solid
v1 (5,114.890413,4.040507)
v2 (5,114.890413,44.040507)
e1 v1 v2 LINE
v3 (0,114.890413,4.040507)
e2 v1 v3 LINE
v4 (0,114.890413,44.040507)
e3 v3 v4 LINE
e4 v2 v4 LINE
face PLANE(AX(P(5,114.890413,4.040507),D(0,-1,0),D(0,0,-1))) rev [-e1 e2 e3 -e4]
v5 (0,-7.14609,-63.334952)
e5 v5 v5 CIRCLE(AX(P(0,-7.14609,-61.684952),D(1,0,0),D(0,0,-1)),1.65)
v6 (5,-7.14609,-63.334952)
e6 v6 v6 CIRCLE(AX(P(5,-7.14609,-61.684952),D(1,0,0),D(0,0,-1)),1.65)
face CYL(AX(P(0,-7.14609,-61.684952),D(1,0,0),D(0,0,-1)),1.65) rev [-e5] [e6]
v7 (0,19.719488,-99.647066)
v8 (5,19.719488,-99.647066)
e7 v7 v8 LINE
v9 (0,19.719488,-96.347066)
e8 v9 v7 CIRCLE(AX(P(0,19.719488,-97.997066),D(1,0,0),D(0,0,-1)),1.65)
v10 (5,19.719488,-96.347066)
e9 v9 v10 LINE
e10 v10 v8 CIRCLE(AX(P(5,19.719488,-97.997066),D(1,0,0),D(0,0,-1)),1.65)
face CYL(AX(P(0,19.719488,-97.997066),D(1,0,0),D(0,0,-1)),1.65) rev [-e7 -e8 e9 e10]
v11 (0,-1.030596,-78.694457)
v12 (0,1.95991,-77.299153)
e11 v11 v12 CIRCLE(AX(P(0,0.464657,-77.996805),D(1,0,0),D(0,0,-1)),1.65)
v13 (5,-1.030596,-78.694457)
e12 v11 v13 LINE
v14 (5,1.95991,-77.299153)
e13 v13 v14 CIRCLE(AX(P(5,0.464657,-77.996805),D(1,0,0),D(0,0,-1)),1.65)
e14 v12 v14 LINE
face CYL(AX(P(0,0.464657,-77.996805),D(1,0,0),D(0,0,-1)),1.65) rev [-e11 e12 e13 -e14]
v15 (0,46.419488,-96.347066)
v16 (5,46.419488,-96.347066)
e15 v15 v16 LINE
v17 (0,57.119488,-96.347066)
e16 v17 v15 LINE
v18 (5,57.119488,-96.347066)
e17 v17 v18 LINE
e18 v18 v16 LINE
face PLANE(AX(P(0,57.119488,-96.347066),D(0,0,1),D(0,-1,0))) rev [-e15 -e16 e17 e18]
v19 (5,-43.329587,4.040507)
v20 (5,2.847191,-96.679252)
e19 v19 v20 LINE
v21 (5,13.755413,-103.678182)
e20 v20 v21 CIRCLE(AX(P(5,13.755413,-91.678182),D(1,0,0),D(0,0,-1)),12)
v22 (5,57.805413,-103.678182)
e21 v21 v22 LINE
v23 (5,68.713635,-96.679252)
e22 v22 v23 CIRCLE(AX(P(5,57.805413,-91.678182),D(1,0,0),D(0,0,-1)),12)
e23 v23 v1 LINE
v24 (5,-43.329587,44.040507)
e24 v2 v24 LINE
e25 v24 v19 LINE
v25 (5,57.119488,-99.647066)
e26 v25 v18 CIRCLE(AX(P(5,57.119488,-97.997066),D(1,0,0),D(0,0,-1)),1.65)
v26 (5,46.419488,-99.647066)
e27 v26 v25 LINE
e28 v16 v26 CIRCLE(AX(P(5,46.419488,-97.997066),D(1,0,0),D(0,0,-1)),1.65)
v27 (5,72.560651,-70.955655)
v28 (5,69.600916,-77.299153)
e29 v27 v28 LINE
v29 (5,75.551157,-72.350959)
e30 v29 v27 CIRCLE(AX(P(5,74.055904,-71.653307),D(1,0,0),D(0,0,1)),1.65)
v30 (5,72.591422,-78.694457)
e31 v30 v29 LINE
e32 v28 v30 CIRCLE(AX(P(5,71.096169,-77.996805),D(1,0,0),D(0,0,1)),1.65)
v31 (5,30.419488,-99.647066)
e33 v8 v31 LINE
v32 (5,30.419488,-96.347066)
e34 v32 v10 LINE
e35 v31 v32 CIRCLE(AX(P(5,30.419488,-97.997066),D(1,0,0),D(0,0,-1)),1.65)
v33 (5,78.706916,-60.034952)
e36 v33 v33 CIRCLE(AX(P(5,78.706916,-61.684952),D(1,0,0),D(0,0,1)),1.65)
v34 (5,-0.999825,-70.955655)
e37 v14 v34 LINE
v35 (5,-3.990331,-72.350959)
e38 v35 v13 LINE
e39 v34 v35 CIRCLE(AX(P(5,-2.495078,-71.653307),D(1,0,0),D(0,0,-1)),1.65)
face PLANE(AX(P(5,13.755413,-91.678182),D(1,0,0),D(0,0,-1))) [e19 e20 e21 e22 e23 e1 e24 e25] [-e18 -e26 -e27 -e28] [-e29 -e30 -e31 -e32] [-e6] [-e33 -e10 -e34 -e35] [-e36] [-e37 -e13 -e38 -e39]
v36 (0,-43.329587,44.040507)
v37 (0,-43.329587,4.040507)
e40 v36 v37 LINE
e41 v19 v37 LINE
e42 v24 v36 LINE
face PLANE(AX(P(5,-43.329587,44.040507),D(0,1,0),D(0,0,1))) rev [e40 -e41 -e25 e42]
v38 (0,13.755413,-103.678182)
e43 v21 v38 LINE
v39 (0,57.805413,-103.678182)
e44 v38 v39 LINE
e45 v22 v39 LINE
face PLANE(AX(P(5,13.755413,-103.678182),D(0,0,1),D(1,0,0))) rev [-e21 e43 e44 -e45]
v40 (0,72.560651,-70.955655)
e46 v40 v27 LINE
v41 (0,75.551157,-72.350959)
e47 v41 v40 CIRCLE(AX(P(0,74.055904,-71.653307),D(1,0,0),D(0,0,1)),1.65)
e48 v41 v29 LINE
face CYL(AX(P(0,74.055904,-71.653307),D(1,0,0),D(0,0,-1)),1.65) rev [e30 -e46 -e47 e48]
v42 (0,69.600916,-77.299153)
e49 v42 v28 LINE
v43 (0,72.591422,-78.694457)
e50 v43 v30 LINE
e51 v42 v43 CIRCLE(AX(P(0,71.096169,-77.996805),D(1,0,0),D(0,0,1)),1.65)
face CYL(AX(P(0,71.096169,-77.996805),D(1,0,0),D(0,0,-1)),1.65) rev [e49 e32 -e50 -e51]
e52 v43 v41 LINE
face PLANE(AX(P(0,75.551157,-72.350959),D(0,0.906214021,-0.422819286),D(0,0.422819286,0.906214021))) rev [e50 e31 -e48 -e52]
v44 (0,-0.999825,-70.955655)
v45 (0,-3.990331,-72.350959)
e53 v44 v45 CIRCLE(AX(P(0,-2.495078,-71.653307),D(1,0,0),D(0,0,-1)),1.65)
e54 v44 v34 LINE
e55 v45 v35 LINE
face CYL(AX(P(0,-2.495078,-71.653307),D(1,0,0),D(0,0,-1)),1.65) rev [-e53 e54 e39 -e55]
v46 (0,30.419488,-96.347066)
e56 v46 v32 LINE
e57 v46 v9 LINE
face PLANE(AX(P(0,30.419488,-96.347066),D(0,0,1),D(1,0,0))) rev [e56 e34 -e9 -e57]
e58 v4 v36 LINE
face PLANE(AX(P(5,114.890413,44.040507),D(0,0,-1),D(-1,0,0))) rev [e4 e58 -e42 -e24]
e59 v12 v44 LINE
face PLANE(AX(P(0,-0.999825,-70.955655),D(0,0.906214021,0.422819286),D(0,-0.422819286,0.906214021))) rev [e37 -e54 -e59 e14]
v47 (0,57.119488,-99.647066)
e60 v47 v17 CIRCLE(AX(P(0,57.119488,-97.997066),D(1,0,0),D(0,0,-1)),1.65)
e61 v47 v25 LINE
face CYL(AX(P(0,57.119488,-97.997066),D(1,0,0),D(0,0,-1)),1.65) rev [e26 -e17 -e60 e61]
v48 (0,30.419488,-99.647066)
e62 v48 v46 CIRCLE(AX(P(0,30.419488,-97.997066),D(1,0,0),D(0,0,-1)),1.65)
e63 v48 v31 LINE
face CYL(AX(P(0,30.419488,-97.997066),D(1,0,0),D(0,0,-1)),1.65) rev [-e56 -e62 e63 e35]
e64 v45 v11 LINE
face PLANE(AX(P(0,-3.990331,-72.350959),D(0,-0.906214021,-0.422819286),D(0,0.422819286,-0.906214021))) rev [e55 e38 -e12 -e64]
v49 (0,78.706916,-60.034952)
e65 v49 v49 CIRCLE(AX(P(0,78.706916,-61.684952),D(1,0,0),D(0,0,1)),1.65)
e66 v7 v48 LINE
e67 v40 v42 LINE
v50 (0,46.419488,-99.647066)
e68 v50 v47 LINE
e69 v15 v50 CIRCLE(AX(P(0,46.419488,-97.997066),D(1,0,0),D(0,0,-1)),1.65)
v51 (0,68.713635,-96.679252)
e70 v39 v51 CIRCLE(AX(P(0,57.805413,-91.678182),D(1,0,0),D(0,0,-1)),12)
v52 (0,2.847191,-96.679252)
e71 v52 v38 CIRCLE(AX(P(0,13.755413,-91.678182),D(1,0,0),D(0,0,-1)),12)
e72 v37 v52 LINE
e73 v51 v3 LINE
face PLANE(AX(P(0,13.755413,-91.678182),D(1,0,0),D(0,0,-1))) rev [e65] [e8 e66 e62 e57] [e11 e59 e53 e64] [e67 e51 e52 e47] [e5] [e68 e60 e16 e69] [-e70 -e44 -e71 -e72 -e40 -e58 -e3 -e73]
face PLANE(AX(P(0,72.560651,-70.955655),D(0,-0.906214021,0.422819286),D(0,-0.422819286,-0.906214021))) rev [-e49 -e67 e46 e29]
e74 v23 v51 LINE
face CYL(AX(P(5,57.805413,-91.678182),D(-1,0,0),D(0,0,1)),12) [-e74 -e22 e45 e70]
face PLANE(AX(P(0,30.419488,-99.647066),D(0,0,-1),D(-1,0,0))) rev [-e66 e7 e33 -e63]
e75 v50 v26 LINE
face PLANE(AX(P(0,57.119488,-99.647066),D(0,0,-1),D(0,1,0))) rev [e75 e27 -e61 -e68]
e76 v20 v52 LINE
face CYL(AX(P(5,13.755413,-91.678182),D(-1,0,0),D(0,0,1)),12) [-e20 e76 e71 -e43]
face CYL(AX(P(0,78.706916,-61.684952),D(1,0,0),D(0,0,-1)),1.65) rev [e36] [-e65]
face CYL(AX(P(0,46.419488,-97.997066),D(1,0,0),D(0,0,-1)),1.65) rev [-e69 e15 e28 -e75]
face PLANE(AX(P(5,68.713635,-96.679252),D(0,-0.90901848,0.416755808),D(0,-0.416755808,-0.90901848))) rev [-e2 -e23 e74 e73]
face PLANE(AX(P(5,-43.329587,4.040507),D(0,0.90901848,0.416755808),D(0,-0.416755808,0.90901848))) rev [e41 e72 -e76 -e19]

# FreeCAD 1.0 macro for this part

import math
import FreeCAD as App
import Part
import Sketcher

doc = App.newDocument("Part")
params = doc.addObject("Spreadsheet::Sheet", "Params")
for row, (alias, value) in enumerate([
    ("sketch1_radius", "12 mm"),
    ("sketch1_height", "40 mm"),
    ("sketch1_width", "158.22 mm"),
    ("sketch1_width2", "44.05 mm"),
    ("pad1_length", "5 mm"),
    ("sketch2_diameter", "3.3 mm"),
    ("sketch2_length", "7 mm"),
    ("sketch2_width", "10.7 mm"),
    ("pocket1_length", "5 mm"),
], start=1):
    params.set(f"A{row}", alias)
    params.set(f"B{row}", "=" + value)
    params.setAlias(f"B{row}", alias)

body = doc.addObject("PartDesign::Body", "Body")

# Sketch on YZ plane
sketch1 = doc.addObject("Sketcher::SketchObject", "Sketch")
body.addObject(sketch1)
sketch1.AttachmentSupport = (doc.YZ_Plane, [""])
sketch1.MapMode = "FlatFace"
sketch1.addGeometry([
    Part.LineSegment(App.Vector(114.890413, 44.040507, 0), App.Vector(-43.329587, 44.040507, 0)),  # 0
    Part.LineSegment(App.Vector(-43.329587, 44.040507, 0), App.Vector(-43.329587, 4.040507, 0)),  # 1
    Part.LineSegment(App.Vector(-43.329587, 4.040507, 0), App.Vector(2.847191, -96.679252, 0)),  # 2
    Part.ArcOfCircle(Part.Circle(App.Vector(13.755413, -91.678182, 0), App.Vector(0, 0, 1), 12), math.radians(-155.370063), math.radians(-90)),  # 3
    Part.LineSegment(App.Vector(13.755413, -103.678182, 0), App.Vector(57.805413, -103.678182, 0)),  # 4
    Part.ArcOfCircle(Part.Circle(App.Vector(57.805413, -91.678182, 0), App.Vector(0, 0, 1), 12), math.radians(-90), math.radians(-24.629937)),  # 5
    Part.LineSegment(App.Vector(68.713635, -96.679252, 0), App.Vector(114.890413, 4.040507, 0)),  # 6
    Part.LineSegment(App.Vector(114.890413, 4.040507, 0), App.Vector(114.890413, 44.040507, 0)),  # 7
], False)
sketch1.addConstraint([
    Sketcher.Constraint("Coincident", 0, 2, 1, 1),
    Sketcher.Constraint("Coincident", 1, 2, 2, 1),
    Sketcher.Constraint("Tangent", 2, 2, 3, 1),
    Sketcher.Constraint("Tangent", 3, 2, 4, 1),
    Sketcher.Constraint("Tangent", 4, 2, 5, 1),
    Sketcher.Constraint("Tangent", 5, 2, 6, 1),
    Sketcher.Constraint("Coincident", 6, 2, 7, 1),
    Sketcher.Constraint("Coincident", 7, 2, 0, 1),
    Sketcher.Constraint("Horizontal", 0),
    Sketcher.Constraint("Vertical", 1),
    Sketcher.Constraint("Horizontal", 4),
    Sketcher.Constraint("Vertical", 7),
    Sketcher.Constraint("Equal", 3, 5),
    Sketcher.Constraint("Horizontal", 2, 2, 5, 2),
    Sketcher.Constraint("Horizontal", 1, 2, 6, 2),
    Sketcher.Constraint("Radius", 3, 12.0),
    Sketcher.Constraint("DistanceY", 1, 2, 1, 1, 40.0),
    Sketcher.Constraint("DistanceX", 0, 2, 0, 1, 158.22),
    Sketcher.Constraint("DistanceX", 4, 1, 4, 2, 44.05),
    Sketcher.Constraint("DistanceX", -1, 1, 2, 2, 2.847191),
    Sketcher.Constraint("DistanceY", 3, 3, 0, 2, 135.71869),
    Sketcher.Constraint("DistanceY", 3, 3, -1, 1, 91.678182),
])
sketch1.setExpression("Constraints[15]", "Params.sketch1_radius")
sketch1.setExpression("Constraints[16]", "Params.sketch1_height")
sketch1.setExpression("Constraints[17]", "Params.sketch1_width")
sketch1.setExpression("Constraints[18]", "Params.sketch1_width2")
pad1 = doc.addObject("PartDesign::Pad", "Pad")
body.addObject(pad1)
pad1.Profile = sketch1
pad1.setExpression("Length", "Params.pad1_length")

# Sketch on YZ plane
sketch2 = doc.addObject("Sketcher::SketchObject", "Sketch001")
body.addObject(sketch2)
sketch2.AttachmentSupport = (doc.YZ_Plane, [""])
sketch2.MapMode = "FlatFace"
sketch2.AttachmentOffset = App.Placement(App.Vector(0, 0, 5), App.Rotation())
sketch2.addGeometry([
    Part.Circle(App.Vector(-7.14609, -61.684952, 0), App.Vector(0, 0, 1), 1.65),  # 0
    Part.Circle(App.Vector(78.706916, -61.684952, 0), App.Vector(0, 0, 1), 1.65),  # 1
    Part.LineSegment(App.Vector(46.419488, -99.647066, 0), App.Vector(57.119488, -99.647066, 0)),  # 2
    Part.ArcOfCircle(Part.Circle(App.Vector(57.119488, -97.997066, 0), App.Vector(0, 0, 1), 1.65), math.radians(-90), math.radians(90)),  # 3
    Part.LineSegment(App.Vector(57.119488, -96.347066, 0), App.Vector(46.419488, -96.347066, 0)),  # 4
    Part.ArcOfCircle(Part.Circle(App.Vector(46.419488, -97.997066, 0), App.Vector(0, 0, 1), 1.65), math.radians(90), math.radians(270)),  # 5
    Part.LineSegment(App.Vector(19.719488, -99.647066, 0), App.Vector(30.419488, -99.647066, 0)),  # 6
    Part.ArcOfCircle(Part.Circle(App.Vector(30.419488, -97.997066, 0), App.Vector(0, 0, 1), 1.65), math.radians(-90), math.radians(90)),  # 7
    Part.LineSegment(App.Vector(30.419488, -96.347066, 0), App.Vector(19.719488, -96.347066, 0)),  # 8
    Part.ArcOfCircle(Part.Circle(App.Vector(19.719488, -97.997066, 0), App.Vector(0, 0, 1), 1.65), math.radians(90), math.radians(270)),  # 9
    Part.LineSegment(App.Vector(1.95991, -77.299153, 0), App.Vector(-0.999825, -70.955655, 0)),  # 10
    Part.ArcOfCircle(Part.Circle(App.Vector(-2.495078, -71.653307, 0), App.Vector(0, 0, 1), 1.65), math.radians(25.012709), math.radians(205.012709)),  # 11
    Part.LineSegment(App.Vector(-3.990331, -72.350959, 0), App.Vector(-1.030596, -78.694457, 0)),  # 12
    Part.ArcOfCircle(Part.Circle(App.Vector(0.464657, -77.996805, 0), App.Vector(0, 0, 1), 1.65), math.radians(-154.987291), math.radians(25.012709)),  # 13
    Part.LineSegment(App.Vector(72.560651, -70.955655, 0), App.Vector(69.600916, -77.299153, 0)),  # 14
    Part.ArcOfCircle(Part.Circle(App.Vector(71.096169, -77.996805, 0), App.Vector(0, 0, 1), 1.65), math.radians(154.987291), math.radians(334.987291)),  # 15
    Part.LineSegment(App.Vector(72.591422, -78.694457, 0), App.Vector(75.551157, -72.350959, 0)),  # 16
    Part.ArcOfCircle(Part.Circle(App.Vector(74.055904, -71.653307, 0), App.Vector(0, 0, 1), 1.65), math.radians(-25.012709), math.radians(154.987291)),  # 17
], False)
sketch2.addConstraint([
    Sketcher.Constraint("Tangent", 2, 2, 3, 1),
    Sketcher.Constraint("Tangent", 3, 2, 4, 1),
    Sketcher.Constraint("Tangent", 4, 2, 5, 1),
    Sketcher.Constraint("Tangent", 5, 2, 2, 1),
    Sketcher.Constraint("Tangent", 6, 2, 7, 1),
    Sketcher.Constraint("Tangent", 7, 2, 8, 1),
    Sketcher.Constraint("Tangent", 8, 2, 9, 1),
    Sketcher.Constraint("Tangent", 9, 2, 6, 1),
    Sketcher.Constraint("Tangent", 10, 2, 11, 1),
    Sketcher.Constraint("Tangent", 11, 2, 12, 1),
    Sketcher.Constraint("Tangent", 12, 2, 13, 1),
    Sketcher.Constraint("Tangent", 13, 2, 10, 1),
    Sketcher.Constraint("Tangent", 14, 2, 15, 1),
    Sketcher.Constraint("Tangent", 15, 2, 16, 1),
    Sketcher.Constraint("Tangent", 16, 2, 17, 1),
    Sketcher.Constraint("Tangent", 17, 2, 14, 1),
    Sketcher.Constraint("Horizontal", 2),
    Sketcher.Constraint("Horizontal", 4),
    Sketcher.Constraint("Horizontal", 6),
    Sketcher.Constraint("Horizontal", 8),
    Sketcher.Constraint("Equal", 0, 1),
    Sketcher.Constraint("Equal", 1, 3),
    Sketcher.Constraint("Equal", 5, 7),
    Sketcher.Constraint("Equal", 9, 11),
    Sketcher.Constraint("Equal", 11, 13),
    Sketcher.Constraint("Equal", 13, 15),
    Sketcher.Constraint("Equal", 15, 17),
    Sketcher.Constraint("Horizontal", 0, 3, 1, 3),
    Sketcher.Constraint("Horizontal", 5, 3, 7, 3),
    Sketcher.Constraint("Horizontal", 13, 3, 15, 3),
    Sketcher.Constraint("Horizontal", 11, 3, 17, 3),
    Sketcher.Constraint("Horizontal", 13, 2, 14, 2),
    Sketcher.Constraint("Equal", 4, 6),
    Sketcher.Constraint("Diameter", 0, 3.3),
    Sketcher.Constraint("Distance", 10, 7.0),
    Sketcher.Constraint("DistanceX", 2, 1, 2, 2, 10.7),
    Sketcher.Constraint("DistanceX", 7, 3, 5, 3, 16.0),
    Sketcher.Constraint("DistanceX", 14, 2, 1, 3, 9.106),
    Sketcher.Constraint("DistanceY", 13, 3, 11, 3, 6.343498),
    Sketcher.Constraint("DistanceY", 14, 2, 1, 3, 15.614201),
    Sketcher.Constraint("DistanceX", 0, 3, -1, 1, 7.14609),
    Sketcher.Constraint("DistanceX", -1, 1, 3, 3, 57.119488),
    Sketcher.Constraint("DistanceX", 11, 3, -1, 1, 2.495078),
    Sketcher.Constraint("DistanceX", -1, 1, 15, 3, 71.096169),
    Sketcher.Constraint("DistanceY", 11, 2, -1, 1, 72.350959),
    Sketcher.Constraint("DistanceY", 9, 3, 11, 3, 26.34376),
])
sketch2.setExpression("Constraints[33]", "Params.sketch2_diameter")
sketch2.setExpression("Constraints[34]", "Params.sketch2_length")
sketch2.setExpression("Constraints[35]", "Params.sketch2_width")
pocket1 = doc.addObject("PartDesign::Pocket", "Pocket")
body.addObject(pocket1)
pocket1.Profile = sketch2
pocket1.setExpression("Length", "Params.pocket1_length")

doc.recompute()
